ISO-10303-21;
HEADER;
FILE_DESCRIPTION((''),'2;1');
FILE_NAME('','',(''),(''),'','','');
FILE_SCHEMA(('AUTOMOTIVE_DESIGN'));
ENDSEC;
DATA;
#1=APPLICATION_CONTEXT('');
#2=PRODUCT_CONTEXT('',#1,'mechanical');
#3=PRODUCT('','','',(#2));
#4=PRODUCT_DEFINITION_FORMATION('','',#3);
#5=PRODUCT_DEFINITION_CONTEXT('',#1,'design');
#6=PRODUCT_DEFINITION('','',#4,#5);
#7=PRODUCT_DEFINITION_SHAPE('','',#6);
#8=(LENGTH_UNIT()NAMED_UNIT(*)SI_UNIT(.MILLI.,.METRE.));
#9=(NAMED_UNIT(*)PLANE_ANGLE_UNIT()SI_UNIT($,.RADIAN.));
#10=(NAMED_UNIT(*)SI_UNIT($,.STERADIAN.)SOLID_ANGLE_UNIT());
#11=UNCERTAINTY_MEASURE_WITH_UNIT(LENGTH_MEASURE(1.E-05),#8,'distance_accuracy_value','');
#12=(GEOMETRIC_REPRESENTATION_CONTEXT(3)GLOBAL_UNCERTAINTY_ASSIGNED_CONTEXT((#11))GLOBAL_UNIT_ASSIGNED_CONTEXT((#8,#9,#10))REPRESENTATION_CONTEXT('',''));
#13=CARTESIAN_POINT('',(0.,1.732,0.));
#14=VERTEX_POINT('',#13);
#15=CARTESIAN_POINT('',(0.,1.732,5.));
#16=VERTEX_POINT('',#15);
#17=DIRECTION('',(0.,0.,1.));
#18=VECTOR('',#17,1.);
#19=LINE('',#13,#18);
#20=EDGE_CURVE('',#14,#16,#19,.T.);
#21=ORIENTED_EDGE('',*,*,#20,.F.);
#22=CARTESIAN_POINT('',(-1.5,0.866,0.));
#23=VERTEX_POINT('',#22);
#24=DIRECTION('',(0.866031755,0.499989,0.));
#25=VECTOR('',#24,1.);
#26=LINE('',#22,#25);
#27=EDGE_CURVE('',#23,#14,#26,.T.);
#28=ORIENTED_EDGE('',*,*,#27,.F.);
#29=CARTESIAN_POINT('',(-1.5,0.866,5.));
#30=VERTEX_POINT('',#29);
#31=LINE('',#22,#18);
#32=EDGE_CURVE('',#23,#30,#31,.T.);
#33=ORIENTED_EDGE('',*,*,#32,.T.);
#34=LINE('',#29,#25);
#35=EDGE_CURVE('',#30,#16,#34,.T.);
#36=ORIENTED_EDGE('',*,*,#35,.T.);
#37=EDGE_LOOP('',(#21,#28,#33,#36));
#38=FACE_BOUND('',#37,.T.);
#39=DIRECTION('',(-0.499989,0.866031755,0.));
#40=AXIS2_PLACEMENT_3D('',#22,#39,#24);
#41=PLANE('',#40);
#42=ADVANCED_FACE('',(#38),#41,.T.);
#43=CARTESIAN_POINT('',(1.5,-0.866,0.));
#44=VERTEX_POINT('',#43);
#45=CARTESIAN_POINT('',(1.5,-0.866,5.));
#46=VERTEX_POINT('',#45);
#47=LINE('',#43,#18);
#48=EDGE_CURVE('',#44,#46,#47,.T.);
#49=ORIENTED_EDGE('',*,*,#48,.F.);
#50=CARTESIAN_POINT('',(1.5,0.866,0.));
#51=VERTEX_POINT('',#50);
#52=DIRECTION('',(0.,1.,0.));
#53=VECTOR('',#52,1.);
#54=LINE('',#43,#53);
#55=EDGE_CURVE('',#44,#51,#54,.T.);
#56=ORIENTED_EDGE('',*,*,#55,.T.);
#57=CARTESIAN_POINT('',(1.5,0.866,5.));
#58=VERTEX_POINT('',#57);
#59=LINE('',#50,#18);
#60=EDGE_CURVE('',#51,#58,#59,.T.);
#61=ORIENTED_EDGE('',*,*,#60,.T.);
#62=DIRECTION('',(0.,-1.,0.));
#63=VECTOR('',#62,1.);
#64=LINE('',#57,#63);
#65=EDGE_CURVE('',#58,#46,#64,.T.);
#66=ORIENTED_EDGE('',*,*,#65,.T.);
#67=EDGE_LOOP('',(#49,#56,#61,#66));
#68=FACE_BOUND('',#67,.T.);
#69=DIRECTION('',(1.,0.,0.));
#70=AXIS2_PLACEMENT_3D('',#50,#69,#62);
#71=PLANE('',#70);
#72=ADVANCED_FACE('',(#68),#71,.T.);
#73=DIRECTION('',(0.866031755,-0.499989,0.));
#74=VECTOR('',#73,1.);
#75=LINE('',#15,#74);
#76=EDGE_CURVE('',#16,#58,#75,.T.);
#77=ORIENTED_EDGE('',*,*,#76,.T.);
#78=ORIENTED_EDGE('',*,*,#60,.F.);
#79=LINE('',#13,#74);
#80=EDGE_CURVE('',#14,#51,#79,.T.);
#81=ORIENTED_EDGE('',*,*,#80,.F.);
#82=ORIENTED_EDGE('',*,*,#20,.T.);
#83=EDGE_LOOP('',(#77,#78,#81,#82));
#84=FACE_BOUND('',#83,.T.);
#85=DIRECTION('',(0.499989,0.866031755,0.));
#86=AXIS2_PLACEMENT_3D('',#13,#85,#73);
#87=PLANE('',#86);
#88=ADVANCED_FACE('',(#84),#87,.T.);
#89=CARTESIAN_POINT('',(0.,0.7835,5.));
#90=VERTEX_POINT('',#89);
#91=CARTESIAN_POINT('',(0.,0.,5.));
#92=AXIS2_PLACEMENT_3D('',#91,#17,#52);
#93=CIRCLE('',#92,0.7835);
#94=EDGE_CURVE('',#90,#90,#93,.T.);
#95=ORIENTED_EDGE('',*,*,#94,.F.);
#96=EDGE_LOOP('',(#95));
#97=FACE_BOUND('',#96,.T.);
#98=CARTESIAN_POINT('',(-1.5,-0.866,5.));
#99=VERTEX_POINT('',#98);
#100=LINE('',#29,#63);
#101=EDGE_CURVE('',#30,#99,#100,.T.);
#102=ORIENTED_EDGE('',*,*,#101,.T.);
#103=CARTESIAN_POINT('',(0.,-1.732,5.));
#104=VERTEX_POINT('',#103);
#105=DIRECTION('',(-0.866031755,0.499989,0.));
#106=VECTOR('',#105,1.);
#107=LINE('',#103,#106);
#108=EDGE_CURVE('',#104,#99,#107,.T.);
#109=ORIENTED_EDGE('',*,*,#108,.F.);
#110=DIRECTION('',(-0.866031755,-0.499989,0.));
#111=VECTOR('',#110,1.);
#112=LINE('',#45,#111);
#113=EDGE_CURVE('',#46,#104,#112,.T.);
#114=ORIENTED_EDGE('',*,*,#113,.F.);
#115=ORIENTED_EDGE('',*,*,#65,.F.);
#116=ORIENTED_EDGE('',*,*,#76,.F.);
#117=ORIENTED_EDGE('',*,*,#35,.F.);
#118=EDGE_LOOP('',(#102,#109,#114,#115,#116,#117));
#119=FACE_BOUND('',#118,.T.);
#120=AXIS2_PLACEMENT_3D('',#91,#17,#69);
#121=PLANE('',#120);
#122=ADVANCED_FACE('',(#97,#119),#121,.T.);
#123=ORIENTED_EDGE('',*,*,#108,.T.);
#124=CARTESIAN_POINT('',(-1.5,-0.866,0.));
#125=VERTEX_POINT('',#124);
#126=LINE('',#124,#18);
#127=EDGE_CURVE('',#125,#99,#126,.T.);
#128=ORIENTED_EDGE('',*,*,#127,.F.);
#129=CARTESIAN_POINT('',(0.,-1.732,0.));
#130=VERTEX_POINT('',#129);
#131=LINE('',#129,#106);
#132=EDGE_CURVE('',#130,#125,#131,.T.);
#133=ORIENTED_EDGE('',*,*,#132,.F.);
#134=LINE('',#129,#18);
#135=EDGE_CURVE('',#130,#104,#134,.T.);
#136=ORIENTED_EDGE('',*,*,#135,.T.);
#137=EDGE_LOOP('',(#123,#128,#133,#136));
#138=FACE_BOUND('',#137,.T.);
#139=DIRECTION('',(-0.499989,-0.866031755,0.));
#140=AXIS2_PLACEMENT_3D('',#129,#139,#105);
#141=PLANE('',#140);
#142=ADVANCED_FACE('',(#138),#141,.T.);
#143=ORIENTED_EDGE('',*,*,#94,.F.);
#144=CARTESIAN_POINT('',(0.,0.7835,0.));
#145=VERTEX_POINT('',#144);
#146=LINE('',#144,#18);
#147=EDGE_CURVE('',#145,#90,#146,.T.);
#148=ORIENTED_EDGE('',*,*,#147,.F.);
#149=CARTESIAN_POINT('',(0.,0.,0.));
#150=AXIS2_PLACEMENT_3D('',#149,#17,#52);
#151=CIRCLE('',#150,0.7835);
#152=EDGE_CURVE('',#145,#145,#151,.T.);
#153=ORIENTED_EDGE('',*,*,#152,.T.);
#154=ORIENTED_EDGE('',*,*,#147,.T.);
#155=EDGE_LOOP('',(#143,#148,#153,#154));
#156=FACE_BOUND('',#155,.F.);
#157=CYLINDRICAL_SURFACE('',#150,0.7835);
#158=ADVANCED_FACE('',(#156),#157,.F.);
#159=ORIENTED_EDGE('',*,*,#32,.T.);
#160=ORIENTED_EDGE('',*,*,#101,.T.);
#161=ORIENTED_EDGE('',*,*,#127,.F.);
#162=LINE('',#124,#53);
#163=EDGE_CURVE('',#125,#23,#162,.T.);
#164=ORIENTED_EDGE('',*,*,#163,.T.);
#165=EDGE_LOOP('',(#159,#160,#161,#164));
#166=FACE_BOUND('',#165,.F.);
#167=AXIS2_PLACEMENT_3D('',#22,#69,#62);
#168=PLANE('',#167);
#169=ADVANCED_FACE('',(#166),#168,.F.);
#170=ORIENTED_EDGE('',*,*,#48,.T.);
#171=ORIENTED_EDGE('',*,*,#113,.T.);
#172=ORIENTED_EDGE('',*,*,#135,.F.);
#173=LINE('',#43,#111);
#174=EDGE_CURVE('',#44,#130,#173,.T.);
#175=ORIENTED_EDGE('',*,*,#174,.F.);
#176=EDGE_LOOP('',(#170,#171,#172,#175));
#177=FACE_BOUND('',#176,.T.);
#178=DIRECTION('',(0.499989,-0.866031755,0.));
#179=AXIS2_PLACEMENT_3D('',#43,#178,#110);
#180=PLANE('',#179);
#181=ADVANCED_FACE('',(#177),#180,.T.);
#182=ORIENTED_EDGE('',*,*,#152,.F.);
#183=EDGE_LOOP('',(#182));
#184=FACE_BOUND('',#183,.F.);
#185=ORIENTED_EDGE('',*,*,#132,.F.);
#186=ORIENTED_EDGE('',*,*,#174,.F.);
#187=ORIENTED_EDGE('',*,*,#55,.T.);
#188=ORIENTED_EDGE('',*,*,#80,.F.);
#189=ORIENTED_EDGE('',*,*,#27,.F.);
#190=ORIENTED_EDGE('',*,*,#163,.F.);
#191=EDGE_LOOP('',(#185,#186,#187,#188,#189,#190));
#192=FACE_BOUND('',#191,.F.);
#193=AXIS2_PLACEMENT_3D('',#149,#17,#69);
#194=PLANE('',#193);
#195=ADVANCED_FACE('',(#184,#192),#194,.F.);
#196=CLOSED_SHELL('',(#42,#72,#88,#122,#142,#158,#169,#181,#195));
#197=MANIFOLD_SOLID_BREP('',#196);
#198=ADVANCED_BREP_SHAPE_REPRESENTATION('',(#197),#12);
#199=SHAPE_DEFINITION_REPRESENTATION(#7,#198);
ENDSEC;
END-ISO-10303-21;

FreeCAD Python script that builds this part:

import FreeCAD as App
import Part
import Sketcher
from FreeCAD import Vector
Q = App.Units.Quantity


def add_polygon(sketch, points):
    """Adds a closed chain of lines whose ends are joined by coincident constraints."""
    first, n = sketch.GeometryCount, len(points)
    for a, b in zip(points, points[1:] + points[:1]):
        sketch.addGeometry(Part.LineSegment(App.Vector(*a, 0), App.Vector(*b, 0)), False)
    for i in range(n):
        sketch.addConstraint(Sketcher.Constraint("Coincident", first + i, 2, first + (i + 1) % n, 1))

doc = App.newDocument("Part")
body = doc.addObject("PartDesign::Body", "Body")

# Sketch on XY plane
sketch1 = body.newObject("Sketcher::SketchObject", "Sketch")
sketch1.AttachmentSupport = (doc.getObject("XY_Plane"), [""])
sketch1.MapMode = "FlatFace"
add_polygon(sketch1, [(1.5, 0.866), (0, 1.732), (-1.5, 0.866), (-1.5, -0.866), (0, -1.732), (1.5, -0.866)])  # lines 0-5
sketch1.addConstraint([
    Sketcher.Constraint("Vertical", 2),
    Sketcher.Constraint("Vertical", 5),
    Sketcher.Constraint("Symmetric", 0, 2, 3, 2, -1, 1),
    Sketcher.Constraint("Symmetric", 1, 2, 4, 2, -1, 1),
    Sketcher.Constraint("PointOnObject", 0, 2, -2),
    Sketcher.Constraint("Parallel", 0, 3),
    Sketcher.Constraint("Horizontal", 2, 2, 4, 2),
    Sketcher.Constraint("DistanceX", 2, 2, 4, 2, 3.0),
    Sketcher.Constraint("DistanceY", 2, 2, 2, 1, 1.732),
    Sketcher.Constraint("Angle", 0, Q("150.0007 deg")),
])
pad1 = body.newObject("PartDesign::Pad", "Pad")
pad1.Profile = sketch1
pad1.Length = 5

# Sketch on XY plane
sketch2 = body.newObject("Sketcher::SketchObject", "Sketch001")
sketch2.AttachmentSupport = (doc.getObject("XY_Plane"), [""])
sketch2.MapMode = "FlatFace"
sketch2.addGeometry(Part.Circle(Vector(0, 0, 0), Vector(0, 0, 1), 0.7835), False)
sketch2.addConstraint([
    Sketcher.Constraint("Coincident", 0, 3, -1, 1),
    Sketcher.Constraint("Diameter", 0, 1.567),
])
doc.recompute()
hole = body.newObject("PartDesign::Hole", "Hole")
hole.Profile = sketch2
hole.ThreadType = "None"
hole.Diameter = 1.567
hole.DepthType = "ThroughAll"
hole.Reversed = True

doc.recompute()
